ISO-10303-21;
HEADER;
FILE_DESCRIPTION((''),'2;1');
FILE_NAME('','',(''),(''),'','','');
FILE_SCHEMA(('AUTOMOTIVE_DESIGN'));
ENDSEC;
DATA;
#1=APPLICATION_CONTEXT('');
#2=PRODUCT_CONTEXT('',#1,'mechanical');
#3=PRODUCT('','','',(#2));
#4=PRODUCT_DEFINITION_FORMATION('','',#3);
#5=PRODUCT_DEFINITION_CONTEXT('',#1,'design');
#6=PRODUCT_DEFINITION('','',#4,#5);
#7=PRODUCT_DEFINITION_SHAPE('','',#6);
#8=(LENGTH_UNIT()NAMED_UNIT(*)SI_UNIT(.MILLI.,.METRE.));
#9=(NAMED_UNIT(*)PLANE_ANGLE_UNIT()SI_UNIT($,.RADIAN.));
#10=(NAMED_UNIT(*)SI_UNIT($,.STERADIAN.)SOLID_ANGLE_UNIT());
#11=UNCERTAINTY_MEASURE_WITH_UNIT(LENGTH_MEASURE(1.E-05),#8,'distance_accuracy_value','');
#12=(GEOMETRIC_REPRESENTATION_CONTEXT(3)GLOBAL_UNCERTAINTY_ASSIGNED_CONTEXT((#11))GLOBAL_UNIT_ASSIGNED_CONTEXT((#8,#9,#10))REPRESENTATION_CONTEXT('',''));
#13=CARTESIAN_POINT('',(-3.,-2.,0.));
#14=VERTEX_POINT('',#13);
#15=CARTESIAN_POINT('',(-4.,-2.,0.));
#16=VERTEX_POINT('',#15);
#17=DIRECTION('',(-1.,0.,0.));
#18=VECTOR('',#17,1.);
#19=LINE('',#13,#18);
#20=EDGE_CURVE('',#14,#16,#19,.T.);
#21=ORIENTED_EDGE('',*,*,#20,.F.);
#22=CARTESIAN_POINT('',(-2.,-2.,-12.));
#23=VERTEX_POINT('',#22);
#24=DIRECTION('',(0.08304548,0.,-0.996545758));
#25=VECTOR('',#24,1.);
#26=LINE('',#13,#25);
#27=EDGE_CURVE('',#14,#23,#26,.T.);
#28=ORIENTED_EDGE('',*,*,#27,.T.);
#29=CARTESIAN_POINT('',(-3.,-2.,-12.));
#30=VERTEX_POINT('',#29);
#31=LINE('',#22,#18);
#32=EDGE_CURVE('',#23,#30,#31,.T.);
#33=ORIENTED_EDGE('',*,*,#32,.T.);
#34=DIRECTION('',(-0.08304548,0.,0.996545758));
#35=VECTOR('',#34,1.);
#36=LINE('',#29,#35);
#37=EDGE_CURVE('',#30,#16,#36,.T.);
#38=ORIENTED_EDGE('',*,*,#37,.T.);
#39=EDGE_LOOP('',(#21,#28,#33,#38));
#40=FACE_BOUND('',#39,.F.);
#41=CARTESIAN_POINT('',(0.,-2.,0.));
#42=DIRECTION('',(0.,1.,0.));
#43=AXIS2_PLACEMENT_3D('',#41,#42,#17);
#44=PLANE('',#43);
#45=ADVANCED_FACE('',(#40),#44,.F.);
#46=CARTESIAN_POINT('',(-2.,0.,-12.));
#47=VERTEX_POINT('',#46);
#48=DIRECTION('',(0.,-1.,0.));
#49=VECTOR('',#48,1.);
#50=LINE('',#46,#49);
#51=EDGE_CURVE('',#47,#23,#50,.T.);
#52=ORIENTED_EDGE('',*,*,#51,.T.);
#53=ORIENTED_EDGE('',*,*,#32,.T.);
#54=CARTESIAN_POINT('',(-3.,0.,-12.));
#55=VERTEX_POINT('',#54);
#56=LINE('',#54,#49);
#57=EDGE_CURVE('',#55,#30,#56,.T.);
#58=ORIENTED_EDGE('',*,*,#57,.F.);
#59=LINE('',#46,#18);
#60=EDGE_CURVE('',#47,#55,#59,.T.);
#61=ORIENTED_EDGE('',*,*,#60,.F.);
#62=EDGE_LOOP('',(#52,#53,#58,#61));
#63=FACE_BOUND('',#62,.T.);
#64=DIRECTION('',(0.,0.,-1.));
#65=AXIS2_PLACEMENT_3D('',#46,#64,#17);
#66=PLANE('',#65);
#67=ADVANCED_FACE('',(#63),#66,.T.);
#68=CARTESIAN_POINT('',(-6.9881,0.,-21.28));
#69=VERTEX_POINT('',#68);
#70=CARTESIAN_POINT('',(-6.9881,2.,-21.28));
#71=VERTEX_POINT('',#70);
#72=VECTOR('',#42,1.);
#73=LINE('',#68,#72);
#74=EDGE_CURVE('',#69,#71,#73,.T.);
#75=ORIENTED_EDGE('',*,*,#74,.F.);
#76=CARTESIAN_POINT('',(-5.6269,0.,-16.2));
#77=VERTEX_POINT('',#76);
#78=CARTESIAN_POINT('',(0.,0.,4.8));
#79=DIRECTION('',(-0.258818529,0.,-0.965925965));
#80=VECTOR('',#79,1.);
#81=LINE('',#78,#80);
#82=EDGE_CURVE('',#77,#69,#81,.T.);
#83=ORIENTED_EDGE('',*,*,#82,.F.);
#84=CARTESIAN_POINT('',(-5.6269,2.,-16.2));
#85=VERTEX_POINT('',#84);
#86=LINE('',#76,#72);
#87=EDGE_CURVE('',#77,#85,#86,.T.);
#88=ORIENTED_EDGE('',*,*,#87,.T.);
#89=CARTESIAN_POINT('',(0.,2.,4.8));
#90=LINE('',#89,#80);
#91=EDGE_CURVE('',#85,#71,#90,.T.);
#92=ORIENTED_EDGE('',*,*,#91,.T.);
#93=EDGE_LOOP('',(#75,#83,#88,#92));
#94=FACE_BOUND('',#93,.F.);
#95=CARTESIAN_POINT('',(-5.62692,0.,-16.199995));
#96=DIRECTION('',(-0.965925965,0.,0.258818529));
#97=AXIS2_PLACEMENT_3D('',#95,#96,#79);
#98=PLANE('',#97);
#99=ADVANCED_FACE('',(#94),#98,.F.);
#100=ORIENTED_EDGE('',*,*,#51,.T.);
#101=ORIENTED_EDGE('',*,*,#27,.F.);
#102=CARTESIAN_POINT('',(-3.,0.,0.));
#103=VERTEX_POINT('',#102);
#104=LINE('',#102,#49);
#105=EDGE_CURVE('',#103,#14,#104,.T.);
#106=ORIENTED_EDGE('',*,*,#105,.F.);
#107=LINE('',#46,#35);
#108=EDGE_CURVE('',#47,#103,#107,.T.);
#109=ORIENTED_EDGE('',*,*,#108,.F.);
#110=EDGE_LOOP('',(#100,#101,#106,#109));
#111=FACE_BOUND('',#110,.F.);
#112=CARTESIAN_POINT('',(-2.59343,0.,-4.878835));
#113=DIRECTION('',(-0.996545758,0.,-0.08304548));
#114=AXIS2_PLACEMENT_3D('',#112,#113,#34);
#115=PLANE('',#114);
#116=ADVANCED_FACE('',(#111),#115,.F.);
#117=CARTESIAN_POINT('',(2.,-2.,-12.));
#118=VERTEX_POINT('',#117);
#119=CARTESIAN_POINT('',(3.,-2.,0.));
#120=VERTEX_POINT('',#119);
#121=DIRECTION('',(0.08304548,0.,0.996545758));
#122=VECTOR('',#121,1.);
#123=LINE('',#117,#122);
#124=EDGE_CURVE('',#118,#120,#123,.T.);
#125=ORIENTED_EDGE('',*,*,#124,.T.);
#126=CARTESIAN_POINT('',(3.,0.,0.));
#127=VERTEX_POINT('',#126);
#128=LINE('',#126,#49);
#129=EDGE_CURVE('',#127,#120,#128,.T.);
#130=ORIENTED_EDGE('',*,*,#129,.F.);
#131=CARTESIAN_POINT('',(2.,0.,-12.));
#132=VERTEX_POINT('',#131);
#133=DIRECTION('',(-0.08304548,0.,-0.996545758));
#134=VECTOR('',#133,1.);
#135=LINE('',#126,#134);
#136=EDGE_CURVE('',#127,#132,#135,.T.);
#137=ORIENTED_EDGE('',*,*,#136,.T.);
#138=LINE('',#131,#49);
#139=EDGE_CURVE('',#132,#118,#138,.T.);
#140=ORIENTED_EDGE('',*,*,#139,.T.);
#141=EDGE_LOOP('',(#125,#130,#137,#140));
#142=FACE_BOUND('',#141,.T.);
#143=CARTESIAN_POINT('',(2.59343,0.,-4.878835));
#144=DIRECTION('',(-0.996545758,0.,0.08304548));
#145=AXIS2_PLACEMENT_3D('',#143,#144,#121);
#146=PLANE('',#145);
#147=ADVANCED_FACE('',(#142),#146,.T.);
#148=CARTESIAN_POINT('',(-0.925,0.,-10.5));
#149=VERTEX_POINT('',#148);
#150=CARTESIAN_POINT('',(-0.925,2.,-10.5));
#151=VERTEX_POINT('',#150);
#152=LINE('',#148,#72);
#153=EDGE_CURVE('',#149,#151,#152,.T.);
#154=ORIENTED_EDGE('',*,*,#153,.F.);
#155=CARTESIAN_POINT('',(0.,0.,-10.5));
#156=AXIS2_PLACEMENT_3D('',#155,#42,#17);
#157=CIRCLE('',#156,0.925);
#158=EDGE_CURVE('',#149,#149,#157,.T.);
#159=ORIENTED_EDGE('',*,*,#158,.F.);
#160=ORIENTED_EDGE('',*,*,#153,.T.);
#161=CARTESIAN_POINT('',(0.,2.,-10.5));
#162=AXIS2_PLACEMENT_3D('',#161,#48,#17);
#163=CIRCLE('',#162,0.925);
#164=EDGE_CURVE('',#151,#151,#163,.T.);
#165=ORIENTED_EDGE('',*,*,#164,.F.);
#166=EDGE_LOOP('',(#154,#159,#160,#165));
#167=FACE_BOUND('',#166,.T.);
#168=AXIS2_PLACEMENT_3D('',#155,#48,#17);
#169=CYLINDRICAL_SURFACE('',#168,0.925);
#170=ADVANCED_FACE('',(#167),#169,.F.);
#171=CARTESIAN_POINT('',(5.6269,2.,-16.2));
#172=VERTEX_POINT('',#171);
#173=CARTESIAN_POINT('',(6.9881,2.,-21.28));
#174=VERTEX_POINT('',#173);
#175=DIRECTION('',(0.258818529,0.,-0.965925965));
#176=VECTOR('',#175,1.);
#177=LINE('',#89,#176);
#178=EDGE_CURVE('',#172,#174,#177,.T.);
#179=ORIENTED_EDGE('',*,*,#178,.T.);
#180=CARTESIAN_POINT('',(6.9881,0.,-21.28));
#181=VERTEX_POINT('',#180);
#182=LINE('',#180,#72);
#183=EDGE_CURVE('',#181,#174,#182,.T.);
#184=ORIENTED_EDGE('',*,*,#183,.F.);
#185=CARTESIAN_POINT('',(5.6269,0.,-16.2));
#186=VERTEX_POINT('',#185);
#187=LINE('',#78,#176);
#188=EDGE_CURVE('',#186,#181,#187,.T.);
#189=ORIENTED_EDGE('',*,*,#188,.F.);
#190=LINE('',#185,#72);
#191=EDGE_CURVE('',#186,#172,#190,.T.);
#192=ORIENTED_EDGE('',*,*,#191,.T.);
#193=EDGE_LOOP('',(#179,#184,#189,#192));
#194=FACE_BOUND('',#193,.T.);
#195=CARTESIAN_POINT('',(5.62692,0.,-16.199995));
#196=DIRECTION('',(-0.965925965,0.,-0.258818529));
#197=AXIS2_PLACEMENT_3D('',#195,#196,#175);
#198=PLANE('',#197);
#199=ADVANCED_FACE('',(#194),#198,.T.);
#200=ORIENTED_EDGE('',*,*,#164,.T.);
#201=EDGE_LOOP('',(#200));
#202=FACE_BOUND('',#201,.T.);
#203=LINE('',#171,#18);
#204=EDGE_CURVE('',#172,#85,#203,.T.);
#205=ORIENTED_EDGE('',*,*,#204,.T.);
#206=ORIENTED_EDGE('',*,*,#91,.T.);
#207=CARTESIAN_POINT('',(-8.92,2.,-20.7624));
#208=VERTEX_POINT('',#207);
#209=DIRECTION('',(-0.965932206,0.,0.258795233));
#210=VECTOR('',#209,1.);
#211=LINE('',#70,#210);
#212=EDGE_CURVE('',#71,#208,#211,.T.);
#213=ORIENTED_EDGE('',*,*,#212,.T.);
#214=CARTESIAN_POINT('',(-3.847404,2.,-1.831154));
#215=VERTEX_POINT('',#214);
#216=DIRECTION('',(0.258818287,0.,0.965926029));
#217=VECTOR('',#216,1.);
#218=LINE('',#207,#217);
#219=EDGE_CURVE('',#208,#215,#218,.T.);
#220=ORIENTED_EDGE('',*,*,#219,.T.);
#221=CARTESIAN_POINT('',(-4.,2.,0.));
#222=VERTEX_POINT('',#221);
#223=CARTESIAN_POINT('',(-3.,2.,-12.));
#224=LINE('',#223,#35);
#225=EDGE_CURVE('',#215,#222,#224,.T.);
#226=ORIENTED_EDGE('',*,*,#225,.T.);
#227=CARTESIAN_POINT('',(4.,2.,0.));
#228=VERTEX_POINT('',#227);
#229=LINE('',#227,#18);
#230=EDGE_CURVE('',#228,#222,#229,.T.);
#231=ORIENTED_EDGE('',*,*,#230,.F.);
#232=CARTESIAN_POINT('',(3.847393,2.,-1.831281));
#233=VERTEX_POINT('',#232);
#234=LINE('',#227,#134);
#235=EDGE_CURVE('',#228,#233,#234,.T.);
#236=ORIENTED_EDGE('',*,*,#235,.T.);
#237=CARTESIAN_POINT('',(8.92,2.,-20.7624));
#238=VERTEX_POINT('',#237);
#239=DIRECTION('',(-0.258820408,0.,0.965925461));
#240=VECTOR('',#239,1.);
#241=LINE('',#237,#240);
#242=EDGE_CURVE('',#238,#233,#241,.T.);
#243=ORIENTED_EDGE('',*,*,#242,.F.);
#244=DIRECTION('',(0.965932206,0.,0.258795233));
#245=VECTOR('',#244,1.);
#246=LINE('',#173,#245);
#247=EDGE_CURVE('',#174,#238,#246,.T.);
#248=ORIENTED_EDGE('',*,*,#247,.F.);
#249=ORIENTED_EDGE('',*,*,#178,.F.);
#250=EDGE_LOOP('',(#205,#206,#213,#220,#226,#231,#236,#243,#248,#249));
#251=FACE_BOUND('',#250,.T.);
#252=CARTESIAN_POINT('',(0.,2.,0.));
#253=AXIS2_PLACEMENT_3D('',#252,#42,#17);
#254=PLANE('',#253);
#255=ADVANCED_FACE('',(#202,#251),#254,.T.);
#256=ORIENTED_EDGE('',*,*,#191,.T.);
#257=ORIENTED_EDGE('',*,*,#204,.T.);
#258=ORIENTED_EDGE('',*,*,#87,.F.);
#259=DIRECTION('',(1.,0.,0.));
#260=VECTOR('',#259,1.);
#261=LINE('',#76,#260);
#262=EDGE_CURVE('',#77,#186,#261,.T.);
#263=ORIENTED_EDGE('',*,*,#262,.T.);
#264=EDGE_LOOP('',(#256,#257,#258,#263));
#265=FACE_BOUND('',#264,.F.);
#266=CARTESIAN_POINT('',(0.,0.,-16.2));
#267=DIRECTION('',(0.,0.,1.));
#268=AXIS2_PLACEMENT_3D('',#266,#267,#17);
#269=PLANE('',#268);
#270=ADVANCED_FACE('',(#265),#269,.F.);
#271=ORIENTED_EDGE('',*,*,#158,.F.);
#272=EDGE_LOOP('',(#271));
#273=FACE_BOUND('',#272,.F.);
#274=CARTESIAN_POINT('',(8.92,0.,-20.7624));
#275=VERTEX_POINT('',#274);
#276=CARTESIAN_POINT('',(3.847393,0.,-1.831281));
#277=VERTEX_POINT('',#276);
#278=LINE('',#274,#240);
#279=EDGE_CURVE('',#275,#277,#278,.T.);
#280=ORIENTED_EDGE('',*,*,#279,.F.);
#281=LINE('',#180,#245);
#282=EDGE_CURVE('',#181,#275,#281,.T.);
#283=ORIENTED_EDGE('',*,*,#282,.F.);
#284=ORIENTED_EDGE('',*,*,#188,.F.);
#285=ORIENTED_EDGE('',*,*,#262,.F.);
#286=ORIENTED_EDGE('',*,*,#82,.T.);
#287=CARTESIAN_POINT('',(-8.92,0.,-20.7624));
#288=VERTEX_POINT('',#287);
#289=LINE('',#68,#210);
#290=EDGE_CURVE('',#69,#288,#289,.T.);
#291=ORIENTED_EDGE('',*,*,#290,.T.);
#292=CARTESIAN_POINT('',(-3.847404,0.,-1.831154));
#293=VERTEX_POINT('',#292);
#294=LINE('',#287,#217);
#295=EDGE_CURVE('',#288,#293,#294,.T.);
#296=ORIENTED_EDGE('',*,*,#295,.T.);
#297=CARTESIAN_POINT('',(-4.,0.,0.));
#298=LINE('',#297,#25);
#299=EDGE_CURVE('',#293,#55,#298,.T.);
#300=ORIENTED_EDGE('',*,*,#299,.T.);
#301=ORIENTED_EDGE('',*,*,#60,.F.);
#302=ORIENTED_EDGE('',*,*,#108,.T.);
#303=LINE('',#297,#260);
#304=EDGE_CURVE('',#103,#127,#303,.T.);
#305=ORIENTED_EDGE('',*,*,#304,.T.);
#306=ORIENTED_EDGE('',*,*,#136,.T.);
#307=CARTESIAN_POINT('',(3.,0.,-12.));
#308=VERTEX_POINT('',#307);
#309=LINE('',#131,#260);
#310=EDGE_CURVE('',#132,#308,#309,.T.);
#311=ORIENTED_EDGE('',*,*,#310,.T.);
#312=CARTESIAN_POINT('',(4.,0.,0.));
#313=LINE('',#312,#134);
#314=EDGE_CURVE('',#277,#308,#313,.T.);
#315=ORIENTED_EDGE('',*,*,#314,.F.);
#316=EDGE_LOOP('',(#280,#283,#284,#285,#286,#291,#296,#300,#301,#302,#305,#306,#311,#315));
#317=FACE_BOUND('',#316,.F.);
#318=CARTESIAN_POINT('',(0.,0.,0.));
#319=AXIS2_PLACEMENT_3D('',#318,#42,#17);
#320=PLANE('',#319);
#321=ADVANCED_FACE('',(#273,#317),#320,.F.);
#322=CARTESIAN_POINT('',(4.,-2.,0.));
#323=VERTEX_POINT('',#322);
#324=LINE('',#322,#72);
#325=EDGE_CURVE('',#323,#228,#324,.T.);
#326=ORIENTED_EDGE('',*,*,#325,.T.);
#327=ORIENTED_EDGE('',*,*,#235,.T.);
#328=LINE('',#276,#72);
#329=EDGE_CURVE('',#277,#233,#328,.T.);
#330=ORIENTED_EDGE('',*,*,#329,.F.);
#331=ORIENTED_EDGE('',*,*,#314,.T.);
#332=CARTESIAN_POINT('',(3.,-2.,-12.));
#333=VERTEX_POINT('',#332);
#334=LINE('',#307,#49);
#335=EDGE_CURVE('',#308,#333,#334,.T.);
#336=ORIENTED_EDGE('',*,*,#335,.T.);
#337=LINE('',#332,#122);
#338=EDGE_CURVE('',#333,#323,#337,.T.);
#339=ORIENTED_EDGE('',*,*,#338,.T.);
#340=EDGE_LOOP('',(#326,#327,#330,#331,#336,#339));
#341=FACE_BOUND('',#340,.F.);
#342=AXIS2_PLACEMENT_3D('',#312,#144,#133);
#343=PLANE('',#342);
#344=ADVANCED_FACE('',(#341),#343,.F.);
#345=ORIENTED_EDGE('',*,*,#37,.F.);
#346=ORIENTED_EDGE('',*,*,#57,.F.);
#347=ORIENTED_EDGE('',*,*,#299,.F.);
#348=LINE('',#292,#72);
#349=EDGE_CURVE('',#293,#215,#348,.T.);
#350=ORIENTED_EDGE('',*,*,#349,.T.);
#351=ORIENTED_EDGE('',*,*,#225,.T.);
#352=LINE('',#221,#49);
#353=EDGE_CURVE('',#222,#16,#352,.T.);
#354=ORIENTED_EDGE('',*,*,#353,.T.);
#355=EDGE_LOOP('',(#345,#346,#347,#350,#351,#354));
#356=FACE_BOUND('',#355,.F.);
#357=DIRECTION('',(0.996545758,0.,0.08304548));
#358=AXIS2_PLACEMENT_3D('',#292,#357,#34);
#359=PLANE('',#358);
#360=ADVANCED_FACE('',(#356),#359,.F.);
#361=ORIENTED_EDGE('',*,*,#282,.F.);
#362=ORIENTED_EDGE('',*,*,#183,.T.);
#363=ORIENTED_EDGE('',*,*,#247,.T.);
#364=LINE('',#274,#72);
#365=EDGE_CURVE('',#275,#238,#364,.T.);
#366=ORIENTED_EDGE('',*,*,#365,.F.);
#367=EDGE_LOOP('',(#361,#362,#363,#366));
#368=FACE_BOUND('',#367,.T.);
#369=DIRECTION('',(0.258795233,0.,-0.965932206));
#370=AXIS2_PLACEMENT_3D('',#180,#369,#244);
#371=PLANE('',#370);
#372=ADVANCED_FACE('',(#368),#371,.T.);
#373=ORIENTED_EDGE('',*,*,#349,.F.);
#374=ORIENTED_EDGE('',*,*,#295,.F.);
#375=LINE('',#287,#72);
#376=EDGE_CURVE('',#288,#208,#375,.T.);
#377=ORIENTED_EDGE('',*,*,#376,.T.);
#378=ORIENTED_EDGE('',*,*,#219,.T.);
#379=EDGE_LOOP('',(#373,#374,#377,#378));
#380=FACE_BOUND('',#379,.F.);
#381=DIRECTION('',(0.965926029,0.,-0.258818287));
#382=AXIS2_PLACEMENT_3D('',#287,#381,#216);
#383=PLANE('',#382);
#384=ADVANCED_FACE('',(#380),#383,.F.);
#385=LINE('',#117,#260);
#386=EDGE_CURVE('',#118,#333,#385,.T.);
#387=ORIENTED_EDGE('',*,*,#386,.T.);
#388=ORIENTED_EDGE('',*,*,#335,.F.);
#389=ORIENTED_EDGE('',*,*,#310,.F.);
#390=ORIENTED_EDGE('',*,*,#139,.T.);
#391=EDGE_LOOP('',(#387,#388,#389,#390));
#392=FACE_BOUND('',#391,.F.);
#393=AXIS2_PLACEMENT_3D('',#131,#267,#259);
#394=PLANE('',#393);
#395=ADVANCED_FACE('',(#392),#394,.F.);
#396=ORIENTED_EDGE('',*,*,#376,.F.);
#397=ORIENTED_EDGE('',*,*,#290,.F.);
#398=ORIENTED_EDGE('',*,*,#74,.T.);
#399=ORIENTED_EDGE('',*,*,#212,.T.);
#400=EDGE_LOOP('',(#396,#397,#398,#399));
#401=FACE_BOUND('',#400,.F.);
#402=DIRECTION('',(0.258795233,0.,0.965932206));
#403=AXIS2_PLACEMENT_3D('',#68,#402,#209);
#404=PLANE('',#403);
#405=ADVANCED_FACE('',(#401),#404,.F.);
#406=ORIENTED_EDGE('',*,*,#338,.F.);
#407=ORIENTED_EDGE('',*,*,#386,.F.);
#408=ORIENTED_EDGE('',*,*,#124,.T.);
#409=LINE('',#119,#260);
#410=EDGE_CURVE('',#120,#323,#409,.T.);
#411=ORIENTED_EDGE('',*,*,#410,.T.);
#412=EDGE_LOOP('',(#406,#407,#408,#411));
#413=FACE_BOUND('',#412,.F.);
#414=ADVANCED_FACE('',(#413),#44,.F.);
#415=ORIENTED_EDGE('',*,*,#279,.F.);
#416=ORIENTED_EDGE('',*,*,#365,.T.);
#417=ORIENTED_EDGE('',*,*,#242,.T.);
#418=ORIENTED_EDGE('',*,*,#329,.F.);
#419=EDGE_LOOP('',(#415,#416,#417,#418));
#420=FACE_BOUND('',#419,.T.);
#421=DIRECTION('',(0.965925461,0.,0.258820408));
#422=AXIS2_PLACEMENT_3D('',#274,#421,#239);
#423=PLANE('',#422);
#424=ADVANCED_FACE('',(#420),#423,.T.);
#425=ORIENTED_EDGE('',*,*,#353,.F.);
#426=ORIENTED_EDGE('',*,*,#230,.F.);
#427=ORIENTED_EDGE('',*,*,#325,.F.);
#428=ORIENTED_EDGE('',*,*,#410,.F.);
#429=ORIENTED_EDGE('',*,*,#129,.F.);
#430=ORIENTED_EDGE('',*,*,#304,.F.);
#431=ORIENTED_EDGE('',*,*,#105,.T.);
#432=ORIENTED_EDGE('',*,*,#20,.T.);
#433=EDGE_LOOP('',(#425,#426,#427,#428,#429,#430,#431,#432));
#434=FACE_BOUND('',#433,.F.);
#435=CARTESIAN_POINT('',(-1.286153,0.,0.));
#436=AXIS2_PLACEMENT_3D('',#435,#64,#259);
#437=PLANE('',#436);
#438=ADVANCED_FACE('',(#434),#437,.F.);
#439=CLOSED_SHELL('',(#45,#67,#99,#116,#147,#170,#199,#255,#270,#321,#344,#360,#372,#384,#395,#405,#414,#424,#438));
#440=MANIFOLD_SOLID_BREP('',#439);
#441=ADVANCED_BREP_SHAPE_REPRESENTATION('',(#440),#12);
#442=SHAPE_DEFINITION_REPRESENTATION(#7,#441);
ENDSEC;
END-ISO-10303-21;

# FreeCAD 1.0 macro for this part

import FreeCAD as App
import Part
import Sketcher

V = App.Vector
Q = App.Units.Quantity

doc = App.newDocument("Part")
body = doc.addObject("PartDesign::Body", "Body")

# Sketch on XZ plane
sketch1 = body.newObject("Sketcher::SketchObject", "Sketch")
sketch1.AttachmentSupport = (doc.getObject("XZ_Plane"), [""])
sketch1.MapMode = "FlatFace"
sketch1.addGeometry([
    Part.LineSegment(V(4, 0, 0), V(3.8, -1.8, 0)),  # 0
    Part.LineSegment(V(3.8, -1.8, 0), V(8.9, -20.8, 0)),  # 1
    Part.LineSegment(V(8.9, -20.8, 0), V(7, -21.3, 0)),  # 2
    Part.LineSegment(V(7, -21.3, 0), V(5.6, -16.2, 0)),  # 3
    Part.LineSegment(V(5.6, -16.2, 0), V(-5.6, -16.2, 0)),  # 4
    Part.LineSegment(V(-5.6, -16.2, 0), V(-7, -21.3, 0)),  # 5
    Part.LineSegment(V(-7, -21.3, 0), V(-8.9, -20.8, 0)),  # 6
    Part.LineSegment(V(-8.9, -20.8, 0), V(-3.8, -1.8, 0)),  # 7
    Part.LineSegment(V(-3.8, -1.8, 0), V(-4, 0, 0)),  # 8
    Part.LineSegment(V(-4, 0, 0), V(4, 0, 0)),  # 9
    Part.Circle(V(0, -10.5, 0), V(0, 0, 1), 0.9),  # 10
], False)
sketch1.addConstraint([
    Sketcher.Constraint("Coincident", 0, 2, 1, 1),
    Sketcher.Constraint("Coincident", 1, 2, 2, 1),
    Sketcher.Constraint("Coincident", 2, 2, 3, 1),
    Sketcher.Constraint("Coincident", 3, 2, 4, 1),
    Sketcher.Constraint("Coincident", 4, 2, 5, 1),
    Sketcher.Constraint("Coincident", 5, 2, 6, 1),
    Sketcher.Constraint("Coincident", 6, 2, 7, 1),
    Sketcher.Constraint("Coincident", 7, 2, 8, 1),
    Sketcher.Constraint("Coincident", 8, 2, 9, 1),
    Sketcher.Constraint("Coincident", 9, 2, 0, 1),
    Sketcher.Constraint("Horizontal", 4),
    Sketcher.Constraint("Horizontal", 9),
    Sketcher.Constraint("Symmetric", 8, 2, 9, 2, -1, 1),
    Sketcher.Constraint("Symmetric", 2, 2, 5, 2, -2),
    Sketcher.Constraint("Symmetric", 1, 2, 6, 2, -2),
    Sketcher.Constraint("Symmetric", 0, 2, 7, 2, -2),
    Sketcher.Constraint("PointOnObject", 10, 3, -2),
    Sketcher.Constraint("Perpendicular", 1, 2),
    Sketcher.Constraint("Perpendicular", 2, 3),
    Sketcher.Constraint("Perpendicular", 5, 6),
    Sketcher.Constraint("Diameter", 10, Q("1.85 mm")),
    Sketcher.Constraint("Distance", 2, Q("2 mm")),
    Sketcher.Constraint("DistanceX", 8, 2, -1, 1, Q("4 mm")),
    Sketcher.Constraint("Angle", 1, Q("-75 deg")),
    Sketcher.Constraint("DistanceY", 10, 3, -1, 1, Q("10.5 mm")),
    Sketcher.Constraint("DistanceY", 3, 2, -1, 1, Q("16.2 mm")),
    Sketcher.Constraint("DistanceX", -1, 1, 1, 2, Q("8.92 mm")),
    Sketcher.Constraint("DistanceY", 2, 2, -1, 1, Q("21.28 mm")),
    Sketcher.Constraint("Distance", 1, Q("19.599 mm")),
])
pad1 = body.newObject("PartDesign::Pad", "Pad")
pad1.Profile = sketch1
pad1.Length = 2
pad1.Reversed = True

# Sketch on XZ plane
sketch2 = body.newObject("Sketcher::SketchObject", "Sketch001")
sketch2.AttachmentSupport = (doc.getObject("XZ_Plane"), [""])
sketch2.MapMode = "FlatFace"
sketch2.addGeometry([
    Part.LineSegment(V(-4, 0, 0), V(-3, 0, 0)),  # 0
    Part.LineSegment(V(-3, 0, 0), V(-2, -12, 0)),  # 1
    Part.LineSegment(V(-2, -12, 0), V(-3, -12, 0)),  # 2
    Part.LineSegment(V(-3, -12, 0), V(-4, 0, 0)),  # 3
    Part.LineSegment(V(3, 0, 0), V(4, 0, 0)),  # 4
    Part.LineSegment(V(4, 0, 0), V(3, -12, 0)),  # 5
    Part.LineSegment(V(3, -12, 0), V(2, -12, 0)),  # 6
    Part.LineSegment(V(2, -12, 0), V(3, 0, 0)),  # 7
], False)
sketch2.addConstraint([
    Sketcher.Constraint("Coincident", 0, 2, 1, 1),
    Sketcher.Constraint("Coincident", 1, 2, 2, 1),
    Sketcher.Constraint("Coincident", 2, 2, 3, 1),
    Sketcher.Constraint("Coincident", 3, 2, 0, 1),
    Sketcher.Constraint("Coincident", 4, 2, 5, 1),
    Sketcher.Constraint("Coincident", 5, 2, 6, 1),
    Sketcher.Constraint("Coincident", 6, 2, 7, 1),
    Sketcher.Constraint("Coincident", 7, 2, 4, 1),
    Sketcher.Constraint("Horizontal", 0),
    Sketcher.Constraint("Horizontal", 2),
    Sketcher.Constraint("Horizontal", 4),
    Sketcher.Constraint("Horizontal", 6),
    Sketcher.Constraint("Symmetric", 3, 2, 4, 2, -1, 1),
    Sketcher.Constraint("Symmetric", 2, 2, 5, 2, -2),
    Sketcher.Constraint("Symmetric", 0, 2, 7, 2, -2),
    Sketcher.Constraint("Parallel", 1, 3),
    Sketcher.Constraint("Parallel", 5, 7),
    Sketcher.Constraint("Vertical", 0, 2, 2, 2),
    Sketcher.Constraint("DistanceX", 0, 1, 0, 2, Q("1 mm")),
    Sketcher.Constraint("DistanceX", 0, 2, -1, 1, Q("3 mm")),
    Sketcher.Constraint("DistanceY", 1, 2, -1, 1, Q("12 mm")),
])
pad2 = body.newObject("PartDesign::Pad", "Pad001")
pad2.Profile = sketch2
pad2.Length = 2

doc.recompute()
